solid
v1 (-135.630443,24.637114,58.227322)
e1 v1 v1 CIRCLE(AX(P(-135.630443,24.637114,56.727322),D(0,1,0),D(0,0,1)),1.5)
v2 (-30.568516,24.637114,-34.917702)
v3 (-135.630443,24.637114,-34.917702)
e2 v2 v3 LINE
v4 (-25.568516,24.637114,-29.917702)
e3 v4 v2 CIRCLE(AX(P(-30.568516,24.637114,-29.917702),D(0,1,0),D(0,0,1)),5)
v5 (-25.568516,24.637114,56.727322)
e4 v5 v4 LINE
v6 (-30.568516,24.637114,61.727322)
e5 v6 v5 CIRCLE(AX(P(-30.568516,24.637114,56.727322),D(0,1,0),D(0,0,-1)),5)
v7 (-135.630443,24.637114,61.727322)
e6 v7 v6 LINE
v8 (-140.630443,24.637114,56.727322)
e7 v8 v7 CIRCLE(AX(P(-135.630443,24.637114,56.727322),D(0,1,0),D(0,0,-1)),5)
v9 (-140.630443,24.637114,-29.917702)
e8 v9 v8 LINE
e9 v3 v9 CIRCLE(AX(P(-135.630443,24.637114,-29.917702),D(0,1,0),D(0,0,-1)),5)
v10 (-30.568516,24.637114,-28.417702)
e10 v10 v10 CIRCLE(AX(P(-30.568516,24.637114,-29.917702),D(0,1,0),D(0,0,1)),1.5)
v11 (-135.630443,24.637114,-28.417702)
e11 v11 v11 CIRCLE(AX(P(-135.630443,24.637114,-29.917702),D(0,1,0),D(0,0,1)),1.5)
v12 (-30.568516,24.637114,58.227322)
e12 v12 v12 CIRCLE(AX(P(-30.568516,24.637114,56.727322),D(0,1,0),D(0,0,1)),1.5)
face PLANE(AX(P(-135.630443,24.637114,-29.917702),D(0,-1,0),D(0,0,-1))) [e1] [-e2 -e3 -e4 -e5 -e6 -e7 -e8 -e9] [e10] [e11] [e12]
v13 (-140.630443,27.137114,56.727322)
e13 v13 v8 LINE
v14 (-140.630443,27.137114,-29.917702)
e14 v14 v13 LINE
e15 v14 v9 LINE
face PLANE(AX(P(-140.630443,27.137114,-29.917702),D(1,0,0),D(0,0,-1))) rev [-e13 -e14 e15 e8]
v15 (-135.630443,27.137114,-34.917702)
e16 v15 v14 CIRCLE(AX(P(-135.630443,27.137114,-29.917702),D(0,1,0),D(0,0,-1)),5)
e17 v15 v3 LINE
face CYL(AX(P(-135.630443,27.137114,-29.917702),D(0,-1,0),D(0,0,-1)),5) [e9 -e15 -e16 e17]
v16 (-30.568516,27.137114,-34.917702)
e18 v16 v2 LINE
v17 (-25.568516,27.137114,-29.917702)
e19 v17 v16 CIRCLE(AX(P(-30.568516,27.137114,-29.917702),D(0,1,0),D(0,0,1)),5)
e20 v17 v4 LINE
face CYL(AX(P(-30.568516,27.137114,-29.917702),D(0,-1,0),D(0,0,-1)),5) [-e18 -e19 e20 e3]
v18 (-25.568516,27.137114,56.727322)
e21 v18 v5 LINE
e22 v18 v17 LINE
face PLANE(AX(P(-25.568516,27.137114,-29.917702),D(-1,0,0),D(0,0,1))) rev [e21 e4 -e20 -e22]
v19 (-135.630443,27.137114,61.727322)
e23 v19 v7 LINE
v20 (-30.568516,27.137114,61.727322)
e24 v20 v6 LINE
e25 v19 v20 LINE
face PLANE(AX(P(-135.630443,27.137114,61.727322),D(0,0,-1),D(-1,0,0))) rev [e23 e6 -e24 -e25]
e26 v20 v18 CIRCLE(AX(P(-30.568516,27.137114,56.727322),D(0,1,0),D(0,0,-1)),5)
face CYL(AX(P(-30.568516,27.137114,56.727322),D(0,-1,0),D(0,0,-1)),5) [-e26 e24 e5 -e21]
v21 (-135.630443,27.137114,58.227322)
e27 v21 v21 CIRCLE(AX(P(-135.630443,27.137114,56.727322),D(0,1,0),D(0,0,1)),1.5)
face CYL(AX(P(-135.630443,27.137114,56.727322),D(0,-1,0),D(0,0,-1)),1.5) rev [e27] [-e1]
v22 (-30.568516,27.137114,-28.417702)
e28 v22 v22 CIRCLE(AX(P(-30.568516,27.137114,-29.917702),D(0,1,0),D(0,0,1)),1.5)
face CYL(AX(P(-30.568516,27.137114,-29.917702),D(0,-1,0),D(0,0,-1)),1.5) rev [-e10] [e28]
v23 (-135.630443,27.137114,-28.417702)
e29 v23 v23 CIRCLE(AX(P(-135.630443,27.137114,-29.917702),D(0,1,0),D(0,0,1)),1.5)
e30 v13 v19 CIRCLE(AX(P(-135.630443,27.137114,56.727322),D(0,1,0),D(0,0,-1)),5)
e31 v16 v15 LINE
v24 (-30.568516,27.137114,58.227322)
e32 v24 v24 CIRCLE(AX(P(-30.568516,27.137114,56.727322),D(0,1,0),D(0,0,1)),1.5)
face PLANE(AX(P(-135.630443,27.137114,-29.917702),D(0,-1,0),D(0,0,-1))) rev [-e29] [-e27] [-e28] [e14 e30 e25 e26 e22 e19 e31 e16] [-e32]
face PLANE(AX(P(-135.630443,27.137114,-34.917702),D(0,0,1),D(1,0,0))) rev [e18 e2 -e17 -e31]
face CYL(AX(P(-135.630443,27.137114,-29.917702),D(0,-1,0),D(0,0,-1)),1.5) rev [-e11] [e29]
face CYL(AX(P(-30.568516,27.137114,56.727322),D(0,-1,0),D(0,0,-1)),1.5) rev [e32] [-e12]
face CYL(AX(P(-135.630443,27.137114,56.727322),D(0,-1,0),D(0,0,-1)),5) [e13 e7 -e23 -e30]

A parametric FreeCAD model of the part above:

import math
import FreeCAD as App
import Part
import Sketcher

doc = App.newDocument("Part")
body = doc.addObject("PartDesign::Body", "Body")

# Sketch on XZ plane
sketch1 = body.newObject("Sketcher::SketchObject", "Sketch")
sketch1.AttachmentSupport = (doc.getObject("XZ_Plane"), [""])
sketch1.MapMode = "FlatFace"
sketch1.AttachmentOffset = App.Placement(App.Vector(0, 0, -24.637114), App.Rotation())
sketch1.addGeometry(Part.LineSegment(App.Vector(-30.568516, -34.917702, 0), App.Vector(-135.630443, -34.917702, 0)), False)
sketch1.addGeometry(Part.ArcOfCircle(Part.Circle(App.Vector(-135.630443, -29.917702, 0), App.Vector(0, 0, 1), 5), math.radians(-180), math.radians(-90)), False)
sketch1.addGeometry(Part.LineSegment(App.Vector(-140.630443, -29.917702, 0), App.Vector(-140.630443, 56.727322, 0)), False)
sketch1.addGeometry(Part.ArcOfCircle(Part.Circle(App.Vector(-135.630443, 56.727322, 0), App.Vector(0, 0, 1), 5), math.radians(90), math.radians(180)), False)
sketch1.addGeometry(Part.LineSegment(App.Vector(-135.630443, 61.727322, 0), App.Vector(-30.568516, 61.727322, 0)), False)
sketch1.addGeometry(Part.ArcOfCircle(Part.Circle(App.Vector(-30.568516, 56.727322, 0), App.Vector(0, 0, 1), 5), math.radians(0), math.radians(90)), False)
sketch1.addGeometry(Part.LineSegment(App.Vector(-25.568516, 56.727322, 0), App.Vector(-25.568516, -29.917702, 0)), False)
sketch1.addGeometry(Part.ArcOfCircle(Part.Circle(App.Vector(-30.568516, -29.917702, 0), App.Vector(0, 0, 1), 5), math.radians(-90), math.radians(0)), False)
sketch1.addGeometry(Part.Circle(App.Vector(-30.568516, 56.727322, 0), App.Vector(0, 0, 1), 1.5), False)
sketch1.addGeometry(Part.Circle(App.Vector(-135.630443, 56.727322, 0), App.Vector(0, 0, 1), 1.5), False)
sketch1.addGeometry(Part.Circle(App.Vector(-30.568516, -29.917702, 0), App.Vector(0, 0, 1), 1.5), False)
sketch1.addGeometry(Part.Circle(App.Vector(-135.630443, -29.917702, 0), App.Vector(0, 0, 1), 1.5), False)
sketch1.addConstraint(Sketcher.Constraint("Tangent", 0, 2, 1, 2))
sketch1.addConstraint(Sketcher.Constraint("Tangent", 1, 1, 2, 1))
sketch1.addConstraint(Sketcher.Constraint("Tangent", 2, 2, 3, 2))
sketch1.addConstraint(Sketcher.Constraint("Tangent", 3, 1, 4, 1))
sketch1.addConstraint(Sketcher.Constraint("Tangent", 4, 2, 5, 2))
sketch1.addConstraint(Sketcher.Constraint("Tangent", 5, 1, 6, 1))
sketch1.addConstraint(Sketcher.Constraint("Tangent", 6, 2, 7, 2))
sketch1.addConstraint(Sketcher.Constraint("Tangent", 7, 1, 0, 1))
sketch1.addConstraint(Sketcher.Constraint("Horizontal", 0))
sketch1.addConstraint(Sketcher.Constraint("Vertical", 2))
sketch1.addConstraint(Sketcher.Constraint("Horizontal", 4))
sketch1.addConstraint(Sketcher.Constraint("Vertical", 6))
sketch1.addConstraint(Sketcher.Constraint("Coincident", 8, 3, 5, 3))
sketch1.addConstraint(Sketcher.Constraint("Coincident", 9, 3, 3, 3))
sketch1.addConstraint(Sketcher.Constraint("Coincident", 10, 3, 7, 3))
sketch1.addConstraint(Sketcher.Constraint("Coincident", 11, 3, 1, 3))
sketch1.addConstraint(Sketcher.Constraint("Equal", 1, 3))
sketch1.addConstraint(Sketcher.Constraint("Equal", 3, 5))
sketch1.addConstraint(Sketcher.Constraint("Equal", 5, 7))
sketch1.addConstraint(Sketcher.Constraint("Equal", 8, 9))
sketch1.addConstraint(Sketcher.Constraint("Equal", 9, 10))
sketch1.addConstraint(Sketcher.Constraint("Equal", 10, 11))
sketch1.addConstraint(Sketcher.Constraint("Diameter", 8, 3.0))
sketch1.addConstraint(Sketcher.Constraint("Radius", 1, 5.0))
sketch1.addConstraint(Sketcher.Constraint("DistanceX", 0, 2, 0, 1, 105.061927))
sketch1.addConstraint(Sketcher.Constraint("DistanceY", 2, 1, 2, 2, 86.645024))
sketch1.addConstraint(Sketcher.Constraint("DistanceY", -1, 1, 3, 3, 56.727322))
sketch1.addConstraint(Sketcher.Constraint("DistanceX", 1, 3, -1, 1, 135.630443))
pad1 = body.newObject("PartDesign::Pad", "Pad")
pad1.Profile = sketch1
pad1.Length = 2.5
pad1.Reversed = True

doc.recompute()
